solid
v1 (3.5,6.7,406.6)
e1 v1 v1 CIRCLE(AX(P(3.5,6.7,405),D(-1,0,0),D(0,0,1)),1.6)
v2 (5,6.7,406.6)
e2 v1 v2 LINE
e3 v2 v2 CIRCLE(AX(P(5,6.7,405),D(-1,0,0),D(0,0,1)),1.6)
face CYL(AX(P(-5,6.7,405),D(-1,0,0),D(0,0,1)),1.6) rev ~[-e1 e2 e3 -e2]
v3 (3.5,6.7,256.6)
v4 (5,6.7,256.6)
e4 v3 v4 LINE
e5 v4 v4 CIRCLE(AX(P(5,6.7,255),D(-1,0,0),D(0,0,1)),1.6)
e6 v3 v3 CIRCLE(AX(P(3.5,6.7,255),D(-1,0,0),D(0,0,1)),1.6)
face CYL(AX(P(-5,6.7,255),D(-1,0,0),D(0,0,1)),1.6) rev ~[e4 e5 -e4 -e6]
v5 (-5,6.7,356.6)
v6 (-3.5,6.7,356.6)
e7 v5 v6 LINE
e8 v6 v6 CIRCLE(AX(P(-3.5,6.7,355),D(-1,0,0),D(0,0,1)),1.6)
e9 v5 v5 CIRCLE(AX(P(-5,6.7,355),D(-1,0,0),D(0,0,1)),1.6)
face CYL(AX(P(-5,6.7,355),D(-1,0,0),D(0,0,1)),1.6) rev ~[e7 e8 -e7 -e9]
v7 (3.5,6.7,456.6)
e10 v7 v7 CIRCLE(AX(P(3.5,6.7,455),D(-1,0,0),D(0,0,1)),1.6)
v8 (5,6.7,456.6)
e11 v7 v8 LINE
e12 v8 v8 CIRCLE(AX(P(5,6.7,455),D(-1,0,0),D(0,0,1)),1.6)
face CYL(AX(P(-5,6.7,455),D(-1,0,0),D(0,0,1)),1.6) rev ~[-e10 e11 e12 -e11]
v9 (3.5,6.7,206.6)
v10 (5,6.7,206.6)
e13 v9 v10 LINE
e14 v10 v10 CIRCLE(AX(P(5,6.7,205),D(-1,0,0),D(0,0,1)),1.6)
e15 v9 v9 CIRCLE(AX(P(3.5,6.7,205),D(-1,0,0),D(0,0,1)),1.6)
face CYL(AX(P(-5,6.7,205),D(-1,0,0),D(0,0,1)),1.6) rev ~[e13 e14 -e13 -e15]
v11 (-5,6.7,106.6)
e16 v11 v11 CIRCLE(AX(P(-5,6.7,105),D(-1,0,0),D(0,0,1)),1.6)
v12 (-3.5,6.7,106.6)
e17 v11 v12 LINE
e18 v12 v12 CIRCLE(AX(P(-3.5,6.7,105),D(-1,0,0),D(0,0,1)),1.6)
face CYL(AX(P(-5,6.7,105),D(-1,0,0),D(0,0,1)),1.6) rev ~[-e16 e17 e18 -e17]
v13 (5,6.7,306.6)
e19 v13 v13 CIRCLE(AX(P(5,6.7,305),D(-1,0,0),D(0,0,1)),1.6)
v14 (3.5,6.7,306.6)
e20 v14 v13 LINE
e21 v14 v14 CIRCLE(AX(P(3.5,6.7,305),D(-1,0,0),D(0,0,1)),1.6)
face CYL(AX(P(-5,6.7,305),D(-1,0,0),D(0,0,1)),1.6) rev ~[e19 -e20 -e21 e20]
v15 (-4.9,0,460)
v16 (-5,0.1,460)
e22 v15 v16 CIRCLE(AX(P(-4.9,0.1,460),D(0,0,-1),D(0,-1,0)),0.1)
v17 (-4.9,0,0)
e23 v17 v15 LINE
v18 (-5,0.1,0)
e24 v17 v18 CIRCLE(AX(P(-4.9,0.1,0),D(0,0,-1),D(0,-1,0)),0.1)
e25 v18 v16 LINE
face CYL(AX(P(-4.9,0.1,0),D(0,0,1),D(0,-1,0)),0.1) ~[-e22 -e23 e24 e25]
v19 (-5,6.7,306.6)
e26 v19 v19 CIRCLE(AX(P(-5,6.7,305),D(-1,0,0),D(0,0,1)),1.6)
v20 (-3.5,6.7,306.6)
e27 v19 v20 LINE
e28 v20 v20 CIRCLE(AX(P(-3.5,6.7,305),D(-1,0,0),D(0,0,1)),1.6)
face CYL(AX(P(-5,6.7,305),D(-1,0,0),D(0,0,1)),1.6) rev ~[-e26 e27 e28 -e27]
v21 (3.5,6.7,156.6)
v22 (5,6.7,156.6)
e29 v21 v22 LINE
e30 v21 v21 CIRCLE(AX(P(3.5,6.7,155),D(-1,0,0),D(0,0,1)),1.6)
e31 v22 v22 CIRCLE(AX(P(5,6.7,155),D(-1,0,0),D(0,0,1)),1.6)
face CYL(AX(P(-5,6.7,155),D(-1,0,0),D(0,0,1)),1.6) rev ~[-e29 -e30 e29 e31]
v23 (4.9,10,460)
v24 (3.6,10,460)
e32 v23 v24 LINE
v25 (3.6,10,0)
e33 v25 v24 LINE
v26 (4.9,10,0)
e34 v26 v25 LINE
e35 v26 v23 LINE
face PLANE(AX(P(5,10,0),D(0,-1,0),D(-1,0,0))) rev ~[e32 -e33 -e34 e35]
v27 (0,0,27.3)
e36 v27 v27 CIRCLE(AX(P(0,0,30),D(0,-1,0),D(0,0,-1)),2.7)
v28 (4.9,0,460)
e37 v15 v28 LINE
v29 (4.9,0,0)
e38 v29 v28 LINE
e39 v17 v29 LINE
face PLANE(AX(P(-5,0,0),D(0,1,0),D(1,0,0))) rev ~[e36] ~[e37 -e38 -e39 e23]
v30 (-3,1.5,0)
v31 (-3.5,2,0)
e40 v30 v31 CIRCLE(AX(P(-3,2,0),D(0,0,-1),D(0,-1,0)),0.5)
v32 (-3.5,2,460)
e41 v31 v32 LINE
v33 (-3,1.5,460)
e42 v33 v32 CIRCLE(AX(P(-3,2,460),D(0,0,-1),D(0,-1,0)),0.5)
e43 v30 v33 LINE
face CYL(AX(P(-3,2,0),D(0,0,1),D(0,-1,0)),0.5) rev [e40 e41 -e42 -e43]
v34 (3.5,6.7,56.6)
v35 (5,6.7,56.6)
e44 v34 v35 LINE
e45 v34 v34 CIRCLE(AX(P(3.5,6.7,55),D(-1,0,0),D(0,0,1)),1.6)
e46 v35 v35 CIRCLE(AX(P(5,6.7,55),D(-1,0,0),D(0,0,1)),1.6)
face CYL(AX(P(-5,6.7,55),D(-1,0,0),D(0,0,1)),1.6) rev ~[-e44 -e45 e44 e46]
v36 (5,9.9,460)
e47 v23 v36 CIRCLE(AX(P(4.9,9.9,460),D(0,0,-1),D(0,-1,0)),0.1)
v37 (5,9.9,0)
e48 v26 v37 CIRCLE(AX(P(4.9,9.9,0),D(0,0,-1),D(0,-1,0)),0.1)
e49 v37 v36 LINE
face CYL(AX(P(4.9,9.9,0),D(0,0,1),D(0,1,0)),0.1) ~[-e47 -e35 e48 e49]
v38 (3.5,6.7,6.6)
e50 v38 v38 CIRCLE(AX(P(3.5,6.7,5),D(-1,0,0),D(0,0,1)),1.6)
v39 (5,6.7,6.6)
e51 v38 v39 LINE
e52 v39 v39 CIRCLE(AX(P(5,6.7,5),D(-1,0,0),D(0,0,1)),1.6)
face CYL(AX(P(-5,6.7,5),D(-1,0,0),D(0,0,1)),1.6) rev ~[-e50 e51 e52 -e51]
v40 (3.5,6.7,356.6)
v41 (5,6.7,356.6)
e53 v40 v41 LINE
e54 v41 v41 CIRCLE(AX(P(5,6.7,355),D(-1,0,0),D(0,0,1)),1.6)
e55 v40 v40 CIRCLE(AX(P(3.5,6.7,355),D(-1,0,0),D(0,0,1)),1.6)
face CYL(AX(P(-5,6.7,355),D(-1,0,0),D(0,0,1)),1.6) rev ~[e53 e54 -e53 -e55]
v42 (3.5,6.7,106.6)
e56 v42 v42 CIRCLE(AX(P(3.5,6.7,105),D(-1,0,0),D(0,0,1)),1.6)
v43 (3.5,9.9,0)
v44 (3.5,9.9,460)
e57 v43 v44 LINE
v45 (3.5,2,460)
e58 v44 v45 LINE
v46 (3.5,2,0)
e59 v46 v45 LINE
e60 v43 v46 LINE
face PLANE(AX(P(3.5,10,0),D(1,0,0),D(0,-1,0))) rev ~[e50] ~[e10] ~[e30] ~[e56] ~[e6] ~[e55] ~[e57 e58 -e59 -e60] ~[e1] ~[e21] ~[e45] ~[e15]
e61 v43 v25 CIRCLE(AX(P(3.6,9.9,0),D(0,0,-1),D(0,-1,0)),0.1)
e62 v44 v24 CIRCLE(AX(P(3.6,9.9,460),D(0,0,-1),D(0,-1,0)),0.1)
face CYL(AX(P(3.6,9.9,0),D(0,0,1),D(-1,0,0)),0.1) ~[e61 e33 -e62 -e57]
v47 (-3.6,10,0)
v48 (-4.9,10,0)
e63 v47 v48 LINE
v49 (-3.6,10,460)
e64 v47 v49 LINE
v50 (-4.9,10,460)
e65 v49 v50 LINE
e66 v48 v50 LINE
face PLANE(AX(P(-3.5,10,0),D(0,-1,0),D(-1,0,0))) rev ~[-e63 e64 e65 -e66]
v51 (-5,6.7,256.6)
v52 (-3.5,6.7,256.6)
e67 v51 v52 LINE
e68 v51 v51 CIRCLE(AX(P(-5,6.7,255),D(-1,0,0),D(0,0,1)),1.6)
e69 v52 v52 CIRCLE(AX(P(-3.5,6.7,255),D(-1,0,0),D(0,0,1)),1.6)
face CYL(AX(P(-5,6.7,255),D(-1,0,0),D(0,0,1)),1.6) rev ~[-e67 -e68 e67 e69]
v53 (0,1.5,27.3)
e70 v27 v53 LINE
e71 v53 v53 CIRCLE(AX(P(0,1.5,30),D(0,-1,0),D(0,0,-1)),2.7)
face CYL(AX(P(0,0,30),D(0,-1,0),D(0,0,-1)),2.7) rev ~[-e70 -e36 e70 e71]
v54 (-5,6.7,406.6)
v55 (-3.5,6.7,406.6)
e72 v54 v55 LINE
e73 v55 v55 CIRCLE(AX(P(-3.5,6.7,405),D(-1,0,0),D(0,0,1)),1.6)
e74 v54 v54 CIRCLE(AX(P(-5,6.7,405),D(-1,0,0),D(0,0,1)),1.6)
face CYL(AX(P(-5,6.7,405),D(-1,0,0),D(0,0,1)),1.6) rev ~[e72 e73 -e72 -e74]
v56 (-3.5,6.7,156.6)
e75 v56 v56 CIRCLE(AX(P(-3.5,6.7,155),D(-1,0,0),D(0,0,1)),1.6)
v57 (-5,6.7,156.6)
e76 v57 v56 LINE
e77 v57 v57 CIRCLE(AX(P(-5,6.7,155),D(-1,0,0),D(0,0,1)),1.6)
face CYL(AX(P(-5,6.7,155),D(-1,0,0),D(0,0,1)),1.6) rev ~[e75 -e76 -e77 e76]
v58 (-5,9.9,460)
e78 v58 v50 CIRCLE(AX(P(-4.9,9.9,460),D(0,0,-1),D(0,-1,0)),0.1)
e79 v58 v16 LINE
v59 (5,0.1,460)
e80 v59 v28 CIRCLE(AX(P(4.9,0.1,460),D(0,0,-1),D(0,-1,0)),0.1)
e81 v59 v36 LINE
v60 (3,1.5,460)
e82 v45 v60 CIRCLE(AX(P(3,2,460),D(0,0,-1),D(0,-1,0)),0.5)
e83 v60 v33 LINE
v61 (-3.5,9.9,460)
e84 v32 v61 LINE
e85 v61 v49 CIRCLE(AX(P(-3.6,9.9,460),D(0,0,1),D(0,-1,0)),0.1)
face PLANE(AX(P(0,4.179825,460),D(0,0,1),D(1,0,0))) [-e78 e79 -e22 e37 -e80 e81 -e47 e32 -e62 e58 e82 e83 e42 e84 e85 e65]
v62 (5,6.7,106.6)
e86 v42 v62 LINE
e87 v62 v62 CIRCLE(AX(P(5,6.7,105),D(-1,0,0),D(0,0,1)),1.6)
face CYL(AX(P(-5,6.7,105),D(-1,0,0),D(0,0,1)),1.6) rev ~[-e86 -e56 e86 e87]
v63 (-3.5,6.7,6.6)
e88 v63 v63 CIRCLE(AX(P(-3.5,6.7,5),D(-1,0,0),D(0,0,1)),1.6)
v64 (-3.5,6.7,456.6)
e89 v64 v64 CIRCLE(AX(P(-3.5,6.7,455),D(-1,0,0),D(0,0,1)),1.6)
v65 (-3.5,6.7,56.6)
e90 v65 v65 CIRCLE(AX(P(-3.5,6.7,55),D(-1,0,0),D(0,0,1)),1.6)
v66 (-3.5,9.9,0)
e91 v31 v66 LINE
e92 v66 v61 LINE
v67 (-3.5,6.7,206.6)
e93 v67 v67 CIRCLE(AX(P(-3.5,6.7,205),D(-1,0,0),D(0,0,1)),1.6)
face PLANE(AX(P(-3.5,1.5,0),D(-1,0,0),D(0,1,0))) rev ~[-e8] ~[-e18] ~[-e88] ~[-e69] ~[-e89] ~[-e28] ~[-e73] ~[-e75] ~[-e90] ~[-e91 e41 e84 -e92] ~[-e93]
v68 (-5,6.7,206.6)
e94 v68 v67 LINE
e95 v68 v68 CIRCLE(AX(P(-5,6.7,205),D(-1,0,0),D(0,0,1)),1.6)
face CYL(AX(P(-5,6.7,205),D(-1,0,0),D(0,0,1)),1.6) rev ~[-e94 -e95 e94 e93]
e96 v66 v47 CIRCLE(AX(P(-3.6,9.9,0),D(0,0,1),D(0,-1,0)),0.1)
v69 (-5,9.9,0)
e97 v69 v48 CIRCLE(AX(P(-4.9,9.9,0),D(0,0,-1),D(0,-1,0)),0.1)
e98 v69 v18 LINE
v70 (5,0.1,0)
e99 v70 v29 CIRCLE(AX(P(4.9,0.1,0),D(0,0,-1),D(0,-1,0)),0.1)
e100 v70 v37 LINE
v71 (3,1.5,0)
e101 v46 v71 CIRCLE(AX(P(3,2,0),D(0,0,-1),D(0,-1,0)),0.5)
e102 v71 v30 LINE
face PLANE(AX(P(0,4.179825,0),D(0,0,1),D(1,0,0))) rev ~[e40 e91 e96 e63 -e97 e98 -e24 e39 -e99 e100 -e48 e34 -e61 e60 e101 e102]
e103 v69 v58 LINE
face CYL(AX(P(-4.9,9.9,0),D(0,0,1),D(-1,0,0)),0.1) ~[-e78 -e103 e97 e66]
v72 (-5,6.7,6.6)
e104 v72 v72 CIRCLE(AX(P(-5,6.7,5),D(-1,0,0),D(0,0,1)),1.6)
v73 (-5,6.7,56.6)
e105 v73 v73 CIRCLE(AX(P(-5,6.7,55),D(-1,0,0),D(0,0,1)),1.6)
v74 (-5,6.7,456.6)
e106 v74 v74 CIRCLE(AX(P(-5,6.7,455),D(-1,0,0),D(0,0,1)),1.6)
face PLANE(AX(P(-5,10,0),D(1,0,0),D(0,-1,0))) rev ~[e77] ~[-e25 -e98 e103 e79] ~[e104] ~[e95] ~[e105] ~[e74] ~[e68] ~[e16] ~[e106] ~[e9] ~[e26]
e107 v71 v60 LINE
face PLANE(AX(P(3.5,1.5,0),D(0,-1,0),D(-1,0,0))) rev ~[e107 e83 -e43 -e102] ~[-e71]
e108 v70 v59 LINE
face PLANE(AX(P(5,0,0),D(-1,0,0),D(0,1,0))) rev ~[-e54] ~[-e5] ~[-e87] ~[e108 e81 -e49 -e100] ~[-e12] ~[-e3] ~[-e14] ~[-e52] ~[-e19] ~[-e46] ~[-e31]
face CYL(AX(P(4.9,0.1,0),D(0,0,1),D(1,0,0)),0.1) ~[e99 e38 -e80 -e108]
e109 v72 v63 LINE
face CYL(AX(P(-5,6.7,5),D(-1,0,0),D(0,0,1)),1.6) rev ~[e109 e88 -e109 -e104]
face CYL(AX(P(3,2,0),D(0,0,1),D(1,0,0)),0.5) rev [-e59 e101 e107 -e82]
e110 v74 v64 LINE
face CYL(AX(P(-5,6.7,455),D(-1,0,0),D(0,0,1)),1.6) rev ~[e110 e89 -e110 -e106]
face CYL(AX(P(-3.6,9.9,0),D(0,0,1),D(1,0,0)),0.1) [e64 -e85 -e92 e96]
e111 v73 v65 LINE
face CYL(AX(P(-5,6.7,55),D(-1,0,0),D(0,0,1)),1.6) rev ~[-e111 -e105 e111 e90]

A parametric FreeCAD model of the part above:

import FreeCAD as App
import Part
import Sketcher
Q = App.Units.Quantity


def edges_at(feature, points):
    """Names of the edges that pass closest to the given points."""
    edges = feature.Shape.Edges
    near = lambda p: min(range(len(edges)), key=lambda i: edges[i].distToShape(Part.Vertex(*p))[0])
    return sorted({f"Edge{near(p) + 1}" for p in points})

doc = App.newDocument("Part")
body = doc.addObject("PartDesign::Body", "Body")

# Sketch on XY plane
sketch1 = body.newObject("Sketcher::SketchObject", "Sketch")
sketch1.AttachmentSupport = (doc.getObject("XY_Plane"), [""])
sketch1.MapMode = "FlatFace"
sketch1.addGeometry([
    Part.LineSegment(App.Vector(-5, 0, 0), App.Vector(5, 0, 0)),  # 0
    Part.LineSegment(App.Vector(5, 0, 0), App.Vector(5, 10, 0)),  # 1
    Part.LineSegment(App.Vector(5, 10, 0), App.Vector(3.5, 10, 0)),  # 2
    Part.LineSegment(App.Vector(3.5, 10, 0), App.Vector(3.5, 1.5, 0)),  # 3
    Part.LineSegment(App.Vector(3.5, 1.5, 0), App.Vector(-3.5, 1.5, 0)),  # 4
    Part.LineSegment(App.Vector(-3.5, 1.5, 0), App.Vector(-3.5, 10, 0)),  # 5
    Part.LineSegment(App.Vector(-3.5, 10, 0), App.Vector(-5, 10, 0)),  # 6
    Part.LineSegment(App.Vector(-5, 10, 0), App.Vector(-5, 0, 0)),  # 7
], False)
sketch1.addConstraint([
    Sketcher.Constraint("Coincident", 0, 2, 1, 1),
    Sketcher.Constraint("Coincident", 1, 2, 2, 1),
    Sketcher.Constraint("Coincident", 2, 2, 3, 1),
    Sketcher.Constraint("Coincident", 3, 2, 4, 1),
    Sketcher.Constraint("Coincident", 4, 2, 5, 1),
    Sketcher.Constraint("Coincident", 5, 2, 6, 1),
    Sketcher.Constraint("Coincident", 6, 2, 7, 1),
    Sketcher.Constraint("Coincident", 7, 2, 0, 1),
    Sketcher.Constraint("Horizontal", 0),
    Sketcher.Constraint("Vertical", 1),
    Sketcher.Constraint("Horizontal", 2),
    Sketcher.Constraint("Vertical", 3),
    Sketcher.Constraint("Horizontal", 4),
    Sketcher.Constraint("Vertical", 5),
    Sketcher.Constraint("Horizontal", 6),
    Sketcher.Constraint("Vertical", 7),
    Sketcher.Constraint("Symmetric", 0, 2, 7, 2, -1, 1),
    Sketcher.Constraint("Symmetric", 2, 2, 5, 2, -2),
    Sketcher.Constraint("Equal", 0, 1),
    Sketcher.Constraint("DistanceX", 0, 1, 0, 2, Q("10 mm")),
    Sketcher.Constraint("DistanceX", 4, 2, 4, 1, Q("7 mm")),
    Sketcher.Constraint("DistanceY", 3, 2, 3, 1, Q("8.5 mm")),
])
pad1 = body.newObject("PartDesign::Pad", "Pad")
pad1.Profile = sketch1
pad1.Length = 460
doc.recompute()

fillet = body.newObject("PartDesign::Fillet", "Fillet")
fillet.Base = (pad1, edges_at(pad1, [(-3.5, 1.5, 230), (3.5, 1.5, 230)]))
fillet.Radius = 0.5
doc.recompute()

fillet2 = body.newObject("PartDesign::Fillet", "Fillet001")
fillet2.Base = (fillet, edges_at(fillet, [
    (5, 0, 230),
    (-5, 0, 230),
    (-5, 10, 230),
    (-3.5, 10, 230),
    (3.5, 10, 230),
    (5, 10, 230),
]))
fillet2.Radius = 0.1

# Sketch on YZ plane
sketch2 = body.newObject("Sketcher::SketchObject", "Sketch001")
sketch2.AttachmentSupport = (doc.getObject("YZ_Plane"), [""])
sketch2.MapMode = "FlatFace"
sketch2.AttachmentOffset = App.Placement(App.Vector(0, 0, -5), App.Rotation())
sketch2.addGeometry([
    Part.Circle(App.Vector(6.7, 5, 0), App.Vector(0, 0, 1), 1.6),  # 0
    Part.Circle(App.Vector(6.7, 55, 0), App.Vector(0, 0, 1), 1.6),  # 1
    Part.Circle(App.Vector(6.7, 105, 0), App.Vector(0, 0, 1), 1.6),  # 2
    Part.Circle(App.Vector(6.7, 155, 0), App.Vector(0, 0, 1), 1.6),  # 3
    Part.Circle(App.Vector(6.7, 205, 0), App.Vector(0, 0, 1), 1.6),  # 4
    Part.Circle(App.Vector(6.7, 255, 0), App.Vector(0, 0, 1), 1.6),  # 5
    Part.Circle(App.Vector(6.7, 305, 0), App.Vector(0, 0, 1), 1.6),  # 6
    Part.Circle(App.Vector(6.7, 355, 0), App.Vector(0, 0, 1), 1.6),  # 7
    Part.Circle(App.Vector(6.7, 405, 0), App.Vector(0, 0, 1), 1.6),  # 8
    Part.Circle(App.Vector(6.7, 455, 0), App.Vector(0, 0, 1), 1.6),  # 9
    Part.Circle(App.Vector(6.7, 505, 0), App.Vector(0, 0, 1), 1.6),  # 10
], False)
sketch2.addConstraint([
    Sketcher.Constraint("Equal", 0, 1),
    Sketcher.Constraint("Equal", 1, 2),
    Sketcher.Constraint("Equal", 2, 3),
    Sketcher.Constraint("Equal", 3, 4),
    Sketcher.Constraint("Equal", 4, 5),
    Sketcher.Constraint("Equal", 5, 6),
    Sketcher.Constraint("Equal", 6, 7),
    Sketcher.Constraint("Equal", 7, 8),
    Sketcher.Constraint("Equal", 8, 9),
    Sketcher.Constraint("Equal", 9, 10),
    Sketcher.Constraint("Vertical", 0, 3, 1, 3),
    Sketcher.Constraint("Vertical", 1, 3, 2, 3),
    Sketcher.Constraint("Vertical", 2, 3, 3, 3),
    Sketcher.Constraint("Vertical", 3, 3, 4, 3),
    Sketcher.Constraint("Vertical", 4, 3, 5, 3),
    Sketcher.Constraint("Vertical", 5, 3, 6, 3),
    Sketcher.Constraint("Vertical", 6, 3, 7, 3),
    Sketcher.Constraint("Vertical", 7, 3, 8, 3),
    Sketcher.Constraint("Vertical", 8, 3, 9, 3),
    Sketcher.Constraint("Vertical", 9, 3, 10, 3),
    Sketcher.Constraint("Diameter", 0, Q("3.2 mm")),
    Sketcher.Constraint("DistanceY", -1, 1, 0, 3, Q("5 mm")),
    Sketcher.Constraint("DistanceY", -1, 1, 1, 3, Q("55 mm")),
    Sketcher.Constraint("DistanceY", -1, 1, 2, 3, Q("105 mm")),
    Sketcher.Constraint("DistanceY", -1, 1, 3, 3, Q("155 mm")),
    Sketcher.Constraint("DistanceY", -1, 1, 4, 3, Q("205 mm")),
    Sketcher.Constraint("DistanceY", -1, 1, 5, 3, Q("255 mm")),
    Sketcher.Constraint("DistanceY", -1, 1, 6, 3, Q("305 mm")),
    Sketcher.Constraint("DistanceY", -1, 1, 7, 3, Q("355 mm")),
    Sketcher.Constraint("DistanceY", -1, 1, 8, 3, Q("405 mm")),
    Sketcher.Constraint("DistanceY", -1, 1, 9, 3, Q("455 mm")),
    Sketcher.Constraint("DistanceY", -1, 1, 10, 3, Q("505 mm")),
    Sketcher.Constraint("DistanceX", -1, 1, 0, 3, Q("6.7 mm")),
])
pocket1 = body.newObject("PartDesign::Pocket", "Pocket")
pocket1.Profile = sketch2
pocket1.Type = "ThroughAll"
pocket1.Reversed = True

# Sketch on XZ plane
sketch3 = body.newObject("Sketcher::SketchObject", "Sketch002")
sketch3.AttachmentSupport = (doc.getObject("XZ_Plane"), [""])
sketch3.MapMode = "FlatFace"
sketch3.addGeometry(Part.Circle(App.Vector(0, 30, 0), App.Vector(0, 0, 1), 2.7), False)
sketch3.addConstraint([
    Sketcher.Constraint("PointOnObject", 0, 3, -2),
    Sketcher.Constraint("Diameter", 0, Q("5.4 mm")),
    Sketcher.Constraint("DistanceY", -1, 1, 0, 3, Q("30 mm")),
])
pocket2 = body.newObject("PartDesign::Pocket", "Pocket001")
pocket2.Profile = sketch3
pocket2.Type = "ThroughAll"

doc.recompute()
